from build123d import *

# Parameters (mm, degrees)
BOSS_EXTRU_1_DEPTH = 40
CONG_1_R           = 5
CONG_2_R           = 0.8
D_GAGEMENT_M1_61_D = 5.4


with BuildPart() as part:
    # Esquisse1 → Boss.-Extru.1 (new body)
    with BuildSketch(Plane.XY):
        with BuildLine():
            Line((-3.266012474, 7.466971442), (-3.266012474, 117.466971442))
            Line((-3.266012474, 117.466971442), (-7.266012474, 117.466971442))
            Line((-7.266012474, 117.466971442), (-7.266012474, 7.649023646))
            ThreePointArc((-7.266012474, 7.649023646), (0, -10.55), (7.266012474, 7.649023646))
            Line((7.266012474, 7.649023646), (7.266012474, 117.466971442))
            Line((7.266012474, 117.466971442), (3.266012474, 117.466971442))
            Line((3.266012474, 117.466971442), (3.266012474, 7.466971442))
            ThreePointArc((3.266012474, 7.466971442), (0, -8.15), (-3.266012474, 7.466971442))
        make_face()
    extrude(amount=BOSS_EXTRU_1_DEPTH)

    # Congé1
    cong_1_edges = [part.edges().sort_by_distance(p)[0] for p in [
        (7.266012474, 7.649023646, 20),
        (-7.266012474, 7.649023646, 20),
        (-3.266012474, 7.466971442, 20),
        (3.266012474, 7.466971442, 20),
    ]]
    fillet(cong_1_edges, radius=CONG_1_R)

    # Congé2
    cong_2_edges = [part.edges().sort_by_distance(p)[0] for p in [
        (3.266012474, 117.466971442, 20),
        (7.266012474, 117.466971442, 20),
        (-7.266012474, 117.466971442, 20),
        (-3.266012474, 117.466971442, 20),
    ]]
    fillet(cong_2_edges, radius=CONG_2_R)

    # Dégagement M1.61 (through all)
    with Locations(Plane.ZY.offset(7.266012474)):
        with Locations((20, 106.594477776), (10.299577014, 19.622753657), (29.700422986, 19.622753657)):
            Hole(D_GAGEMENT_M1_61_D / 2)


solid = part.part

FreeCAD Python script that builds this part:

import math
import FreeCAD as App
import Part
import Sketcher

V = App.Vector
Q = App.Units.Quantity


def edges_at(feature, points):
    """Names of the edges that pass closest to the given points."""
    edges = feature.Shape.Edges
    near = lambda p: min(range(len(edges)), key=lambda i: edges[i].distToShape(Part.Vertex(*p))[0])
    return sorted({f"Edge{near(p) + 1}" for p in points})

doc = App.newDocument("Part")
params = doc.addObject("Spreadsheet::Sheet", "Params")
for row, (alias, value) in enumerate([
    ("sketch1_width", "4 mm"),
    ("sketch1_height", "110 mm"),
    ("sketch1_radius", "10.55 mm"),
    ("sketch1_radius2", "8.15 mm"),
    ("pad1_length", "40 mm"),
    ("fillet_radius", "5 mm"),
    ("fillet2_radius", "0.8 mm"),
    ("sketch2_diameter", "5.4 mm"),
    ("hole_diameter", "5.4 mm"),
], start=1):
    params.set(f"A{row}", alias)
    params.set(f"B{row}", "=" + value)
    params.setAlias(f"B{row}", alias)

body = doc.addObject("PartDesign::Body", "Body")

sketch1 = doc.addObject("Sketcher::SketchObject", "Sketch")
body.addObject(sketch1)
sketch1.AttachmentSupport = (doc.XY_Plane, [""])
sketch1.MapMode = "FlatFace"
sketch1.addGeometry(Part.LineSegment(V(-3.3, 7.5, 0), V(-3.3, 117.5, 0)), False)
sketch1.addGeometry(Part.LineSegment(V(-3.3, 117.5, 0), V(-7.3, 117.5, 0)), False)
sketch1.addGeometry(Part.LineSegment(V(-7.3, 117.5, 0), V(-7.3, 7.6, 0)), False)
sketch1.addGeometry(Part.ArcOfCircle(Part.Circle(V(0, 0, 0), V(0, 0, 1), 10.6), math.radians(134), math.radians(406)), False)
sketch1.addGeometry(Part.LineSegment(V(7.3, 7.6, 0), V(7.3, 117.5, 0)), False)
sketch1.addGeometry(Part.LineSegment(V(7.3, 117.5, 0), V(3.3, 117.5, 0)), False)
sketch1.addGeometry(Part.LineSegment(V(3.3, 117.5, 0), V(3.3, 7.5, 0)), False)
sketch1.addGeometry(Part.ArcOfCircle(Part.Circle(V(0, 0, 0), V(0, 0, 1), 8.2), math.radians(114), math.radians(426)), False)
sketch1.addConstraint(Sketcher.Constraint("Coincident", 0, 2, 1, 1))
sketch1.addConstraint(Sketcher.Constraint("Coincident", 1, 2, 2, 1))
sketch1.addConstraint(Sketcher.Constraint("Coincident", 2, 2, 3, 1))
sketch1.addConstraint(Sketcher.Constraint("Coincident", 3, 2, 4, 1))
sketch1.addConstraint(Sketcher.Constraint("Coincident", 4, 2, 5, 1))
sketch1.addConstraint(Sketcher.Constraint("Coincident", 5, 2, 6, 1))
sketch1.addConstraint(Sketcher.Constraint("Coincident", 6, 2, 7, 2))
sketch1.addConstraint(Sketcher.Constraint("Coincident", 7, 1, 0, 1))
sketch1.addConstraint(Sketcher.Constraint("Vertical", 0))
sketch1.addConstraint(Sketcher.Constraint("Horizontal", 1))
sketch1.addConstraint(Sketcher.Constraint("Vertical", 2))
sketch1.addConstraint(Sketcher.Constraint("Vertical", 4))
sketch1.addConstraint(Sketcher.Constraint("Horizontal", 5))
sketch1.addConstraint(Sketcher.Constraint("Vertical", 6))
sketch1.addConstraint(Sketcher.Constraint("Coincident", 3, 3, -1, 1))
sketch1.addConstraint(Sketcher.Constraint("Coincident", 7, 3, -1, 1))
sketch1.addConstraint(Sketcher.Constraint("Symmetric", 1, 2, 4, 2, -2))
sketch1.addConstraint(Sketcher.Constraint("Horizontal", 6, 2, 7, 1))
sketch1.addConstraint(Sketcher.Constraint("DistanceX", 1, 2, 1, 1, Q("4 mm")))
sketch1.addConstraint(Sketcher.Constraint("DistanceY", 0, 1, 0, 2, Q("110 mm")))
sketch1.addConstraint(Sketcher.Constraint("Radius", 3, Q("10.55 mm")))
sketch1.addConstraint(Sketcher.Constraint("Radius", 7, Q("8.15 mm")))
sketch1.addConstraint(Sketcher.Constraint("DistanceY", 2, 2, 2, 1, Q("109.817948 mm")))
sketch1.setExpression("Constraints[18]", "Params.sketch1_width")
sketch1.setExpression("Constraints[19]", "Params.sketch1_height")
sketch1.setExpression("Constraints[20]", "Params.sketch1_radius")
sketch1.setExpression("Constraints[21]", "Params.sketch1_radius2")
pad1 = doc.addObject("PartDesign::Pad", "Pad")
body.addObject(pad1)
pad1.Profile = sketch1
pad1.setExpression("Length", "Params.pad1_length")
doc.recompute()

fillet = doc.addObject("PartDesign::Fillet", "Fillet")
body.addObject(fillet)
fillet.Base = (pad1, edges_at(pad1, [
    (7.266, 7.649, 20),
    (-7.266, 7.649, 20),
    (-3.266, 7.467, 20),
    (3.266, 7.467, 20),
]))
fillet.setExpression("Radius", "Params.fillet_radius")
doc.recompute()

fillet2 = doc.addObject("PartDesign::Fillet", "Fillet001")
body.addObject(fillet2)
fillet2.Base = (fillet, edges_at(fillet, [
    (3.266, 117.467, 20),
    (7.266, 117.467, 20),
    (-7.266, 117.467, 20),
    (-3.266, 117.467, 20),
]))
fillet2.setExpression("Radius", "Params.fillet2_radius")

sketch2 = doc.addObject("Sketcher::SketchObject", "Sketch001")
body.addObject(sketch2)
sketch2.AttachmentSupport = (doc.YZ_Plane, [""])
sketch2.MapMode = "FlatFace"
sketch2.AttachmentOffset = App.Placement(V(0, 0, -7.266012), App.Rotation())
sketch2.addGeometry(Part.Circle(V(106.6, 20, 0), V(0, 0, 1), 2.7), False)
sketch2.addGeometry(Part.Circle(V(19.6, 10.3, 0), V(0, 0, 1), 2.7), False)
sketch2.addGeometry(Part.Circle(V(19.6, 29.7, 0), V(0, 0, 1), 2.7), False)
sketch2.addConstraint(Sketcher.Constraint("Equal", 0, 1))
sketch2.addConstraint(Sketcher.Constraint("Equal", 1, 2))
sketch2.addConstraint(Sketcher.Constraint("Vertical", 1, 3, 2, 3))
sketch2.addConstraint(Sketcher.Constraint("Diameter", 0, Q("5.4 mm")))
sketch2.addConstraint(Sketcher.Constraint("DistanceY", -1, 1, 0, 3, Q("20 mm")))
sketch2.addConstraint(Sketcher.Constraint("DistanceX", -1, 1, 0, 3, Q("106.594478 mm")))
sketch2.addConstraint(Sketcher.Constraint("DistanceX", -1, 1, 1, 3, Q("19.622754 mm")))
sketch2.addConstraint(Sketcher.Constraint("DistanceY", -1, 1, 1, 3, Q("10.299577 mm")))
sketch2.addConstraint(Sketcher.Constraint("DistanceY", -1, 1, 2, 3, Q("29.700423 mm")))
sketch2.setExpression("Constraints[3]", "Params.sketch2_diameter")
doc.recompute()
hole = doc.addObject("PartDesign::Hole", "Hole")
body.addObject(hole)
hole.Profile = sketch2
hole.ThreadType = "None"
hole.setExpression("Diameter", "Params.hole_diameter")
hole.DepthType = "ThroughAll"
hole.Reversed = True

doc.recompute()
